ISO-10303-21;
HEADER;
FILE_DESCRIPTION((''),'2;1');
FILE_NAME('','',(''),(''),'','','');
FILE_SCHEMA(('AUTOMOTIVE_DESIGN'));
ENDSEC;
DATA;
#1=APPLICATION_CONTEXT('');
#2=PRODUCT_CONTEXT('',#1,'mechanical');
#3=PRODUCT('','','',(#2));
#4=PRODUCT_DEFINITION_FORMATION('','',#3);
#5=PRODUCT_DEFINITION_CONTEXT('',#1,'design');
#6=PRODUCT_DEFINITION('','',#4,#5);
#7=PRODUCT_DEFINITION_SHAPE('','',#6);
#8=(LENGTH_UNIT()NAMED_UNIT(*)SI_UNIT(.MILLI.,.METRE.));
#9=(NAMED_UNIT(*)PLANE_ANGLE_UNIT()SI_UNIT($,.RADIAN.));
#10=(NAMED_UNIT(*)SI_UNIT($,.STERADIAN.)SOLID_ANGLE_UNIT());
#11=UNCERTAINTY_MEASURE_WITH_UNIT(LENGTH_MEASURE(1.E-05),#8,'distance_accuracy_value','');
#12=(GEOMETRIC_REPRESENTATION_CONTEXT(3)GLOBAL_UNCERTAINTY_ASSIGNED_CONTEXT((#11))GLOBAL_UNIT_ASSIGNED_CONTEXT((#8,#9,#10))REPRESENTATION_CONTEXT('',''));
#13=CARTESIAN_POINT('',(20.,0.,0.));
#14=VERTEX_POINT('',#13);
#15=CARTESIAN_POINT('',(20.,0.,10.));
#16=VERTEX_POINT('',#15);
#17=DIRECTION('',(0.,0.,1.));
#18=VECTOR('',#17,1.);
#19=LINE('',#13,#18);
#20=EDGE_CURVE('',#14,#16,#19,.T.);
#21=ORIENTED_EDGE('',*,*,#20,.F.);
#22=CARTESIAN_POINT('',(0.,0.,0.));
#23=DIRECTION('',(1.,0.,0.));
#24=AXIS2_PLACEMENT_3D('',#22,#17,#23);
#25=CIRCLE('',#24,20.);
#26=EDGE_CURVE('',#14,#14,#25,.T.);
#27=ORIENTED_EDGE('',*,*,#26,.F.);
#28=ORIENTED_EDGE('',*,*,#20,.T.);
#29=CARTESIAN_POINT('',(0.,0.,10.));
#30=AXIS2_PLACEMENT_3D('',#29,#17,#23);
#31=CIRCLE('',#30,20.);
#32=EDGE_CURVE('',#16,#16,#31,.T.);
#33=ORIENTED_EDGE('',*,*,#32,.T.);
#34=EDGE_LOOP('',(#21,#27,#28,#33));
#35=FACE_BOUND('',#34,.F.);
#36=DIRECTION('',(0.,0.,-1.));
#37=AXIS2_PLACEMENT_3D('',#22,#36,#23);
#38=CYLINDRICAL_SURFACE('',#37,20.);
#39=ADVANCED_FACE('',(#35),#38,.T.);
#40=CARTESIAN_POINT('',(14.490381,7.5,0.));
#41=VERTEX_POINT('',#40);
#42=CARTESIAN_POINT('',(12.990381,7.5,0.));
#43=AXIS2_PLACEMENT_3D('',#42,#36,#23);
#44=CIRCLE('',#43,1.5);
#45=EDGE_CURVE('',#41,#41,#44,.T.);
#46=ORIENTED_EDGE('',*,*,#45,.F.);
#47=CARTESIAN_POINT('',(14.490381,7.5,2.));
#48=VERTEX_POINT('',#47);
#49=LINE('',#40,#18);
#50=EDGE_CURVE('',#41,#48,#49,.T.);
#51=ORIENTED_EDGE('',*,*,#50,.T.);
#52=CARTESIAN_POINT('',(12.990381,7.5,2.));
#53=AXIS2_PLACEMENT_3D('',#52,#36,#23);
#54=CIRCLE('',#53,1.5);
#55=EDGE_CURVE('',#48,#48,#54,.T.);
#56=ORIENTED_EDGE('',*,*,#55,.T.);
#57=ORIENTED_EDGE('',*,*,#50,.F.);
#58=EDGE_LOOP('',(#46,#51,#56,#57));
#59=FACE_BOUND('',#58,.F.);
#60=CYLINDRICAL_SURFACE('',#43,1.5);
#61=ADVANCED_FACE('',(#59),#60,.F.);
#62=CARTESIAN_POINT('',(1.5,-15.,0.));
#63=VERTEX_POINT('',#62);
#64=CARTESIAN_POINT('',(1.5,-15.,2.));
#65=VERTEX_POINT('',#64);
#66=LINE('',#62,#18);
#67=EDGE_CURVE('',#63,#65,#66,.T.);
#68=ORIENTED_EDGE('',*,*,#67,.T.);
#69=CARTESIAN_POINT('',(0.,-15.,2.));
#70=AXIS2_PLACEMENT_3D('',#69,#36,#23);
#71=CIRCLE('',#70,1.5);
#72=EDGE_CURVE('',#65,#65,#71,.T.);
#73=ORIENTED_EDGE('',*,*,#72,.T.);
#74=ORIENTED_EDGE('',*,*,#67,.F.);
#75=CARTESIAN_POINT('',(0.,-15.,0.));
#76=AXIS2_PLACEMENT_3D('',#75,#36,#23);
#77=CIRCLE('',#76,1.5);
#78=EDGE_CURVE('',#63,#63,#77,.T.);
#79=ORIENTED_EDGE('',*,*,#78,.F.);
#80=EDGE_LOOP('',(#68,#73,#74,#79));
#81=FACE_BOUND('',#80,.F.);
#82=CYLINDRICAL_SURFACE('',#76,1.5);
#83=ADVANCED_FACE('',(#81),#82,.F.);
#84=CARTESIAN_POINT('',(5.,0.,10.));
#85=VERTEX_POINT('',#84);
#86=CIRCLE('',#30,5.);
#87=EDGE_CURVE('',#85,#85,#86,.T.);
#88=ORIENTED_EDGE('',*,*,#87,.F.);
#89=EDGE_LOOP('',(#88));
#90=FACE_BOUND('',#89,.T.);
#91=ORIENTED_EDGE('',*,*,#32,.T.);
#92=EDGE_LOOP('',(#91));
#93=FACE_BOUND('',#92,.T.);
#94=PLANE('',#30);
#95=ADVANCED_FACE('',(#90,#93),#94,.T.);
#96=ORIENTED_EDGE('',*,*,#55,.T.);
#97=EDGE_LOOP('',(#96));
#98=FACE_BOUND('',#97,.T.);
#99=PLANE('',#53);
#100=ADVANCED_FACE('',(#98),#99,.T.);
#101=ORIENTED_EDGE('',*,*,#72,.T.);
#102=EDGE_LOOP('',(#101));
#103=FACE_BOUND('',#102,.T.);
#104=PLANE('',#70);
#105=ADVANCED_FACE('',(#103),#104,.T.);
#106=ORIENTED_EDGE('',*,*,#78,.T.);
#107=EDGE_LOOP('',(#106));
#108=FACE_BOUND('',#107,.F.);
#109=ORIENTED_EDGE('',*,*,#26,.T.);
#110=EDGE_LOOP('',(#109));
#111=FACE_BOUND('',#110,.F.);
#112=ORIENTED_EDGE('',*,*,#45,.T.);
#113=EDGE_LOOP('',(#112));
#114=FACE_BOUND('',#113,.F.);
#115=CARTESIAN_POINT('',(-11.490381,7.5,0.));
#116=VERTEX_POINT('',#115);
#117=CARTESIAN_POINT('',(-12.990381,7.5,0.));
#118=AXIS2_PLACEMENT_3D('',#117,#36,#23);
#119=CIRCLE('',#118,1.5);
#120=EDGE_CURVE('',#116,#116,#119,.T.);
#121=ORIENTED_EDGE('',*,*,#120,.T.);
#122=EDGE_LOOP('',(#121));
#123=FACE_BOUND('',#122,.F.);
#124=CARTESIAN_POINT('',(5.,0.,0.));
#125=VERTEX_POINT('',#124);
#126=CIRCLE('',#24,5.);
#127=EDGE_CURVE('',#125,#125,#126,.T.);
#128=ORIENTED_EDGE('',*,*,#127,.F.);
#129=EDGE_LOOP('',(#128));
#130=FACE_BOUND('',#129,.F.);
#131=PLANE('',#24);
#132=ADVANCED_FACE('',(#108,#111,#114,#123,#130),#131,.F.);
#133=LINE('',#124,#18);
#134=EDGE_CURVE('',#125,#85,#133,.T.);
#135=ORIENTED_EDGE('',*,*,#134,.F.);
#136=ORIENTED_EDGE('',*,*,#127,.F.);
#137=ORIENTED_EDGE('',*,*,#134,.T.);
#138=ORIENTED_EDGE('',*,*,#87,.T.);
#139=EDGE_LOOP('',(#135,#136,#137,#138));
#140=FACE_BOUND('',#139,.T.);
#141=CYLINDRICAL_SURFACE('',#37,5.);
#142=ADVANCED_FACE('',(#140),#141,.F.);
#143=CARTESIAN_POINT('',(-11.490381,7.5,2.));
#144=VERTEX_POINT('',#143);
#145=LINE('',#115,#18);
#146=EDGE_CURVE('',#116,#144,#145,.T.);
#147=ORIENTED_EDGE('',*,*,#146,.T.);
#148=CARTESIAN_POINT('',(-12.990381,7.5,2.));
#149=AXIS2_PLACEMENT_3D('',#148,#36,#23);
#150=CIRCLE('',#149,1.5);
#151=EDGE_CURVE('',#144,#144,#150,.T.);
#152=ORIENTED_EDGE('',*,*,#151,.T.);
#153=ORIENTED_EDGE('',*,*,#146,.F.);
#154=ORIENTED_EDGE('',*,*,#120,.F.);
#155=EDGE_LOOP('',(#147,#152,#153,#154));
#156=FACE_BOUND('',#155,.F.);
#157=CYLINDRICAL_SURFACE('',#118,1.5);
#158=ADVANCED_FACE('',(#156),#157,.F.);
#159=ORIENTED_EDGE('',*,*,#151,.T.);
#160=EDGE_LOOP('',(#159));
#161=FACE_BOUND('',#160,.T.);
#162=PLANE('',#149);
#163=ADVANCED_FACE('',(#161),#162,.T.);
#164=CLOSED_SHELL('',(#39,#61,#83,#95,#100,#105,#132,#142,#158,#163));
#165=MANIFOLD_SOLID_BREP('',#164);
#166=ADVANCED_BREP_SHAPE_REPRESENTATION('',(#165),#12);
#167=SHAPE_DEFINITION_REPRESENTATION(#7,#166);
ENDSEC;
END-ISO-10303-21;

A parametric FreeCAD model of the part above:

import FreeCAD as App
import Part
import Sketcher

doc = App.newDocument("Part")
body = doc.addObject("PartDesign::Body", "Body")

sketch1 = body.newObject("Sketcher::SketchObject", "Sketch")
sketch1.AttachmentSupport = (doc.getObject("XY_Plane"), [""])
sketch1.MapMode = "FlatFace"
sketch1.addGeometry(Part.Circle(App.Vector(0, 0, 0), App.Vector(0, 0, 1), 20), False)
sketch1.addGeometry(Part.Circle(App.Vector(0, 0, 0), App.Vector(0, 0, 1), 5), False)
sketch1.addConstraint(Sketcher.Constraint("Coincident", 0, 3, -1, 1))
sketch1.addConstraint(Sketcher.Constraint("Coincident", 1, 3, -1, 1))
sketch1.addConstraint(Sketcher.Constraint("Diameter", 0, 40.0))
sketch1.addConstraint(Sketcher.Constraint("Diameter", 1, 10.0))
pad1 = body.newObject("PartDesign::Pad", "Pad")
pad1.Profile = sketch1
pad1.Length = 10

sketch2 = body.newObject("Sketcher::SketchObject", "Sketch001")
sketch2.AttachmentSupport = (doc.getObject("XY_Plane"), [""])
sketch2.MapMode = "FlatFace"
sketch2.addGeometry(Part.Circle(App.Vector(0, -15, 0), App.Vector(0, 0, 1), 1.5), False)
sketch2.addGeometry(Part.Circle(App.Vector(-12.990381, 7.5, 0), App.Vector(0, 0, 1), 1.5), False)
sketch2.addGeometry(Part.Circle(App.Vector(12.990381, 7.5, 0), App.Vector(0, 0, 1), 1.5), False)
sketch2.addConstraint(Sketcher.Constraint("Equal", 0, 1))
sketch2.addConstraint(Sketcher.Constraint("Equal", 1, 2))
sketch2.addConstraint(Sketcher.Constraint("Symmetric", 1, 3, 2, 3, -2))
sketch2.addConstraint(Sketcher.Constraint("PointOnObject", 0, 3, -2))
sketch2.addConstraint(Sketcher.Constraint("Diameter", 0, 3.0))
sketch2.addConstraint(Sketcher.Constraint("DistanceY", 0, 3, -1, 1, 15.0))
sketch2.addConstraint(Sketcher.Constraint("DistanceY", -1, 1, 1, 3, 7.5))
sketch2.addConstraint(Sketcher.Constraint("DistanceX", 1, 3, -1, 1, 12.990381))
pocket1 = body.newObject("PartDesign::Pocket", "Pocket")
pocket1.Profile = sketch2
pocket1.Length = 2
pocket1.Reversed = True

doc.recompute()
